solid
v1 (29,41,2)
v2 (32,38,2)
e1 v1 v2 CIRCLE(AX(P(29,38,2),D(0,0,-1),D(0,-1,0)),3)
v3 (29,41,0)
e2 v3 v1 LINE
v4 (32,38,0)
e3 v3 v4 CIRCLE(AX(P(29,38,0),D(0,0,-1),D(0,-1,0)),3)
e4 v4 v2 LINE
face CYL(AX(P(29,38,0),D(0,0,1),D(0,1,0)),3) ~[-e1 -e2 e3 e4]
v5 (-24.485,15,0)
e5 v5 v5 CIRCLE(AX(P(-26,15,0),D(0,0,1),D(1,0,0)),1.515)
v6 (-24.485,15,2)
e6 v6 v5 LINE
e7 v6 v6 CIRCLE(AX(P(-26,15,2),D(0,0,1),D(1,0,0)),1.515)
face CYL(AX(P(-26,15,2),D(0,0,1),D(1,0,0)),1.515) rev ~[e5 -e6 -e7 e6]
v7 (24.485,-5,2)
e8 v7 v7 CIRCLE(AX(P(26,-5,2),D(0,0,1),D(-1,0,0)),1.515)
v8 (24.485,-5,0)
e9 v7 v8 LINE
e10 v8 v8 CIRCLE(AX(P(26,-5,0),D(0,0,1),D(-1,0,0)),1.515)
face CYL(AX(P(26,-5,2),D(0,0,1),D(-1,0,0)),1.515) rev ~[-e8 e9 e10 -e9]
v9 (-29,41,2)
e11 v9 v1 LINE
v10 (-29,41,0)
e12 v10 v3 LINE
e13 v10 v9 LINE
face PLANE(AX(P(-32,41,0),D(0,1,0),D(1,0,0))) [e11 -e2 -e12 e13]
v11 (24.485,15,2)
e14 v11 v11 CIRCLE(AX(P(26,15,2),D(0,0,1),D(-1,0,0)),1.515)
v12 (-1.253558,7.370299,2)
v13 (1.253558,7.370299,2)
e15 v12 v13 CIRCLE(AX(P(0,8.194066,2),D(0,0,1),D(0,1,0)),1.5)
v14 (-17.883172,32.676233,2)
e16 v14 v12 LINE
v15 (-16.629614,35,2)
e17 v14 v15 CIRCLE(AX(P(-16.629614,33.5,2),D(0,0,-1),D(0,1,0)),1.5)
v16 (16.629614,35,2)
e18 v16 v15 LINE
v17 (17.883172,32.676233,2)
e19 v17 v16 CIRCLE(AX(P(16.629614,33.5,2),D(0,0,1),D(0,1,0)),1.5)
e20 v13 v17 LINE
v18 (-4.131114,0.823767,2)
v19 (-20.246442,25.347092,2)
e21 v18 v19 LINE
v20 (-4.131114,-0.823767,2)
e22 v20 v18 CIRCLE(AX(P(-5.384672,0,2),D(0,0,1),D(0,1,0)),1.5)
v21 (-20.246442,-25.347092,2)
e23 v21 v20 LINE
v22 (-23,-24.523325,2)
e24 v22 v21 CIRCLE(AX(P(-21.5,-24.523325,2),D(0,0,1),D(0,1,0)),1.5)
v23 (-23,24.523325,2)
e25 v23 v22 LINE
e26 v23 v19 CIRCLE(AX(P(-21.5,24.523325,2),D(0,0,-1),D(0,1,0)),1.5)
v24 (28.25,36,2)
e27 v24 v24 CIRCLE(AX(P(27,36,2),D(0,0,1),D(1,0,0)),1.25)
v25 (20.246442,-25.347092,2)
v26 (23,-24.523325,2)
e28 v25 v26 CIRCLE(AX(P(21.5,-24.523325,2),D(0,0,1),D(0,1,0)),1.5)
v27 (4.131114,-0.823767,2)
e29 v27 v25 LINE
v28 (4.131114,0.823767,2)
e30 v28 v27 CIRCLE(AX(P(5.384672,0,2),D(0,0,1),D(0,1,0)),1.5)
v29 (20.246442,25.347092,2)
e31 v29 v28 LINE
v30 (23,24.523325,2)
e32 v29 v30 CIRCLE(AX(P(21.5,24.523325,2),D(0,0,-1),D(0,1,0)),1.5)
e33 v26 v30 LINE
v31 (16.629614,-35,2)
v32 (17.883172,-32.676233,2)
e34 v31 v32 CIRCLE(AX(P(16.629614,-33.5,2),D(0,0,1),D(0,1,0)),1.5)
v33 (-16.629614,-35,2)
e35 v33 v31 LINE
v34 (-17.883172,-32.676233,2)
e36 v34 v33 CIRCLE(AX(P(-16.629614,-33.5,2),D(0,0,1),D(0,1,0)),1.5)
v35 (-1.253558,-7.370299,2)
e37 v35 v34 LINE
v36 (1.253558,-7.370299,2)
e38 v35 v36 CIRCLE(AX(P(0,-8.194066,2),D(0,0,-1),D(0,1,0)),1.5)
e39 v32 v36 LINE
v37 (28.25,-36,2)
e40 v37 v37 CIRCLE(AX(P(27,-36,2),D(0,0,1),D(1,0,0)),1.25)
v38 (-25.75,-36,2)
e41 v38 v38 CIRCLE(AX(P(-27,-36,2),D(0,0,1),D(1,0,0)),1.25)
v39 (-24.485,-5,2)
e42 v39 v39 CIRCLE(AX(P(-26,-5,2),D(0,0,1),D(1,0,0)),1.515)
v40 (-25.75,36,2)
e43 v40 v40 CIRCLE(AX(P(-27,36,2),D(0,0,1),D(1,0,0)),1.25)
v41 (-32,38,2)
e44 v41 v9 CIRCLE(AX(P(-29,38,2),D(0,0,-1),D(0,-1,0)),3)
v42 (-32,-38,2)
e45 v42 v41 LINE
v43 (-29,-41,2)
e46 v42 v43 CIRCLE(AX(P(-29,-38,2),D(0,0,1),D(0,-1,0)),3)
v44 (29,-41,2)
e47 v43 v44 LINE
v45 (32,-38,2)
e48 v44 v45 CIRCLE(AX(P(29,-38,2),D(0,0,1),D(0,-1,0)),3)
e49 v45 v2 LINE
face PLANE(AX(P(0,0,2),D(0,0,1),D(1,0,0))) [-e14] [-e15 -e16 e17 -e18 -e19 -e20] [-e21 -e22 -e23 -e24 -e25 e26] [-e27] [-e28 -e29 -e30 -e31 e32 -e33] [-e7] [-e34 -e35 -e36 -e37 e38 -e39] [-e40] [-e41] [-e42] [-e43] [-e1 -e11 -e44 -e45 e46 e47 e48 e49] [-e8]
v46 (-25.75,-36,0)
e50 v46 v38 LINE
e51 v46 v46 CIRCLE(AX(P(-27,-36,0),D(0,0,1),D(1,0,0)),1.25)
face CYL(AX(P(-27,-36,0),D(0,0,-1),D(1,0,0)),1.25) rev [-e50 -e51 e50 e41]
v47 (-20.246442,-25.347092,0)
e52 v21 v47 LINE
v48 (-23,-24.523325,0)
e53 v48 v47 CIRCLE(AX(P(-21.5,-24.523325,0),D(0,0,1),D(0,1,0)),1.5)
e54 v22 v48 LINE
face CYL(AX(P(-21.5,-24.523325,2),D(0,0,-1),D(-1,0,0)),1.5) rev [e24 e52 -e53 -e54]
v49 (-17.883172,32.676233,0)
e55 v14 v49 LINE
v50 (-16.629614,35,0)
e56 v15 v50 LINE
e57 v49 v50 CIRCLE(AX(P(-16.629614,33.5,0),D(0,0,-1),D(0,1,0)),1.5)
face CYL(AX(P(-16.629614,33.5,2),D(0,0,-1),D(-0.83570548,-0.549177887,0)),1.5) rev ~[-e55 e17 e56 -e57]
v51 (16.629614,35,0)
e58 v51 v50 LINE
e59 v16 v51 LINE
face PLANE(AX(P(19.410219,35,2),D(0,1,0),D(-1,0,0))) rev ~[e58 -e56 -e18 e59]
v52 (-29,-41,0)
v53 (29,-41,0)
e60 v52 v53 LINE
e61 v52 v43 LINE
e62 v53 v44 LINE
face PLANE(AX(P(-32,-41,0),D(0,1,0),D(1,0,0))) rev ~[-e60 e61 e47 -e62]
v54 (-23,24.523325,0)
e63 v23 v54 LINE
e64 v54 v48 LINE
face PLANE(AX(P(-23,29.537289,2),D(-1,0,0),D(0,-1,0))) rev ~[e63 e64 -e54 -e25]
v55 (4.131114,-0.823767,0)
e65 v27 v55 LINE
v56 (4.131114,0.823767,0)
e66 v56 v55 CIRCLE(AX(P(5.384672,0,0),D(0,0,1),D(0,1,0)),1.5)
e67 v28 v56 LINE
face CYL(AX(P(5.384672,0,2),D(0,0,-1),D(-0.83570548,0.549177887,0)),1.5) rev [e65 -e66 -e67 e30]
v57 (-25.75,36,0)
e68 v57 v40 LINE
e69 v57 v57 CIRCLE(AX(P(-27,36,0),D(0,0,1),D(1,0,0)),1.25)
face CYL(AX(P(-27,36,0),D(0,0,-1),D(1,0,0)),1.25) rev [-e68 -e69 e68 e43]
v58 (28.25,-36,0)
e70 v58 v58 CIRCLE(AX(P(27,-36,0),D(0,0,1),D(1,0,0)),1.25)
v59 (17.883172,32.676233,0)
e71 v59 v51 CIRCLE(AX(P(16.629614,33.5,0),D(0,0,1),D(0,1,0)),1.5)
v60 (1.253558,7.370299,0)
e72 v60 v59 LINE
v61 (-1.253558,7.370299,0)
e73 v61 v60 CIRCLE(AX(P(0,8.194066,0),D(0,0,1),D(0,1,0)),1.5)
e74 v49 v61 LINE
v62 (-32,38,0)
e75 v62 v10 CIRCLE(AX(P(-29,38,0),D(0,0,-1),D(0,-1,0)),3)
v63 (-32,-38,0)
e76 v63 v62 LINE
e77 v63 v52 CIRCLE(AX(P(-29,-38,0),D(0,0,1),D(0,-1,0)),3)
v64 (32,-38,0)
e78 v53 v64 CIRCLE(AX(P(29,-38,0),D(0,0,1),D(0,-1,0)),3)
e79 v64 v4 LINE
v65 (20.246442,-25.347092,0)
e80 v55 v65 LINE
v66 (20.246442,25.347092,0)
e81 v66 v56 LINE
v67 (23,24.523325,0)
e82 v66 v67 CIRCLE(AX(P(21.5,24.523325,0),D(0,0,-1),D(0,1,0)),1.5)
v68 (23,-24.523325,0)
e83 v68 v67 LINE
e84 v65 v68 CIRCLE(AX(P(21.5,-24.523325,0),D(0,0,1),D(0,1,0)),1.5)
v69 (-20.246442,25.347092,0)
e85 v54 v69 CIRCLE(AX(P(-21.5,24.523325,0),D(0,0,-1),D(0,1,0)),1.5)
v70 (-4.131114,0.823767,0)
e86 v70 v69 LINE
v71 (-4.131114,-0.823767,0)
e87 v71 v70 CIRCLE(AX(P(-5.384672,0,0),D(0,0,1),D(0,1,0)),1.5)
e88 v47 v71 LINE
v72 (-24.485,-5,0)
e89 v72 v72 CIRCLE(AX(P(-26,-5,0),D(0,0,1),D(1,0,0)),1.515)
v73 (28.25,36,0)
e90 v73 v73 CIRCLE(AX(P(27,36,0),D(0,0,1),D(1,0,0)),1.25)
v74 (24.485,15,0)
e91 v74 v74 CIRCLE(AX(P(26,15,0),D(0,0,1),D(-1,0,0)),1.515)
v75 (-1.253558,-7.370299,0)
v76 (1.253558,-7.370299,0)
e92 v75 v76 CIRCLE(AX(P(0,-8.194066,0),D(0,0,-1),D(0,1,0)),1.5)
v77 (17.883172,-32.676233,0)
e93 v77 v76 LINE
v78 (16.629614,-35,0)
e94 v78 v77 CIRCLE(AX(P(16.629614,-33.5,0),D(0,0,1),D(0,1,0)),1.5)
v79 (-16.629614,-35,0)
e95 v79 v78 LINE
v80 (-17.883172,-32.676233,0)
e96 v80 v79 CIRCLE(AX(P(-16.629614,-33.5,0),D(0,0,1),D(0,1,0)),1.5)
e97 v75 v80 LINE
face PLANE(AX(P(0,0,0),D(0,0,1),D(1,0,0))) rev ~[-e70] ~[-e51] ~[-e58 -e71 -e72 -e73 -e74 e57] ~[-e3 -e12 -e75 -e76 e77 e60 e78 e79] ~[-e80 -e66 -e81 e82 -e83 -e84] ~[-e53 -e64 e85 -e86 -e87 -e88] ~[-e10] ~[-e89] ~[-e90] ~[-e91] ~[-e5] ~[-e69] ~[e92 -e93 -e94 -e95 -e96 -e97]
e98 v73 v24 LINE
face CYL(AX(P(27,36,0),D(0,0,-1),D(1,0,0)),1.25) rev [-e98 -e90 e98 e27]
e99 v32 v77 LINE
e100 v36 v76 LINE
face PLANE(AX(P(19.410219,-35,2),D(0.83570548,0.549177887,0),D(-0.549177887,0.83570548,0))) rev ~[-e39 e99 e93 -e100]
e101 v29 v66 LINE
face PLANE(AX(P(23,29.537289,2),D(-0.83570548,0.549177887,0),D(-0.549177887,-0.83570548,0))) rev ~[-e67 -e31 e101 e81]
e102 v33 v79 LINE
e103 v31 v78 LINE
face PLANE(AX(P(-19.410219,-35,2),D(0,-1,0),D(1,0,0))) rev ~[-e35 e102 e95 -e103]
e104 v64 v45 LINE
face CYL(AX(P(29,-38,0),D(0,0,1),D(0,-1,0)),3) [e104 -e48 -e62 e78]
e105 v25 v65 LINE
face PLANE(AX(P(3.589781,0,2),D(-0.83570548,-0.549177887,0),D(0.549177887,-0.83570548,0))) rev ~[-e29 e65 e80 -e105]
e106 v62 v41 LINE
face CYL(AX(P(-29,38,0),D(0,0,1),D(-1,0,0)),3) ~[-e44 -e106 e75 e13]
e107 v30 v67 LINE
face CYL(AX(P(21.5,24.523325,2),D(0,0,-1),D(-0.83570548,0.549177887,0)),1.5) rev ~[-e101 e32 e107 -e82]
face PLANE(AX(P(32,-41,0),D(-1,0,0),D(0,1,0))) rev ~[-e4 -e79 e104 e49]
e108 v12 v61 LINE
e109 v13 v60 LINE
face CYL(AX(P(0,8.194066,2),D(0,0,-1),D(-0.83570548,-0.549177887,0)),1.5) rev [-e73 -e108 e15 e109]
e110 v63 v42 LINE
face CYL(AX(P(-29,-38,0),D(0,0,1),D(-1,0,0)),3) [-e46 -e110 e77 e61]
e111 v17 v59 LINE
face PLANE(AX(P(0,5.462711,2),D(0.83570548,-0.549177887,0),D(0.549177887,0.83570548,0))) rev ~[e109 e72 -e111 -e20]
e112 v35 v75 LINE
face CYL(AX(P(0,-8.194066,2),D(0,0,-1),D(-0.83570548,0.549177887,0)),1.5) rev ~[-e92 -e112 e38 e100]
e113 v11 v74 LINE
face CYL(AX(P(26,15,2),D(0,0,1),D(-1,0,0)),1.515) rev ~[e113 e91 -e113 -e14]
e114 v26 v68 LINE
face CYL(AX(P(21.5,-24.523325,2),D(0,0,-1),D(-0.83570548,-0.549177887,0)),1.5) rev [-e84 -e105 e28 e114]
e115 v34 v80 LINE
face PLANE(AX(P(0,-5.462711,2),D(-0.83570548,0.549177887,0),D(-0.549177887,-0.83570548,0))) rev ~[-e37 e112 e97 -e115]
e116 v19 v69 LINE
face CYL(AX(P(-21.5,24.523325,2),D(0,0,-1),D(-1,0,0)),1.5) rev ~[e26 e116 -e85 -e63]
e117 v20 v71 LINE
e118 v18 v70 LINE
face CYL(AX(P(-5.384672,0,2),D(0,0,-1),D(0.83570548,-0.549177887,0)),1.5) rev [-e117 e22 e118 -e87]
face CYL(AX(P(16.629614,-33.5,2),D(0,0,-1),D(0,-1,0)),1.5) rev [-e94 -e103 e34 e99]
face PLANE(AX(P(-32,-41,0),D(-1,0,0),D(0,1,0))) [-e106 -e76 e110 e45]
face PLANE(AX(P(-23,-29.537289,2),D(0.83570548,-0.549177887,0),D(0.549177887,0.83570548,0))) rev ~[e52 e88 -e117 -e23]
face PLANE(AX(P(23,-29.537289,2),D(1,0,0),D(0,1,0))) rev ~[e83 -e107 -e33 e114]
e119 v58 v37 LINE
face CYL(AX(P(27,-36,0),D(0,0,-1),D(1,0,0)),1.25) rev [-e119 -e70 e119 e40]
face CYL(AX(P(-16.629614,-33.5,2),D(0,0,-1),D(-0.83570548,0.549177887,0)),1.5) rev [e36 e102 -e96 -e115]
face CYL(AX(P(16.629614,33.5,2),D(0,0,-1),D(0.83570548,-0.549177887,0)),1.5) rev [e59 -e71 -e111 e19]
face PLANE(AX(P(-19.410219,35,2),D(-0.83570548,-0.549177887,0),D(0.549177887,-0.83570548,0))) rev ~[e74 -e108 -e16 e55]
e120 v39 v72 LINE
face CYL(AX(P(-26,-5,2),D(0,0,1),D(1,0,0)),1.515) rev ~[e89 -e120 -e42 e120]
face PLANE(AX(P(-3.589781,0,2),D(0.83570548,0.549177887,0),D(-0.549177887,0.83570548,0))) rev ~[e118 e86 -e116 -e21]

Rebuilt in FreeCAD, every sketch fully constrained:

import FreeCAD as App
import Part
import Sketcher

V = App.Vector
Q = App.Units.Quantity


def edges_at(feature, points):
    """Names of the edges that pass closest to the given points."""
    edges = feature.Shape.Edges
    near = lambda p: min(range(len(edges)), key=lambda i: edges[i].distToShape(Part.Vertex(*p))[0])
    return sorted({f"Edge{near(p) + 1}" for p in points})

doc = App.newDocument("Part")
body = doc.addObject("PartDesign::Body", "Body")

sketch1 = body.newObject("Sketcher::SketchObject", "Sketch")
sketch1.AttachmentSupport = (doc.getObject("XY_Plane"), [""])
sketch1.MapMode = "FlatFace"
sketch1.addGeometry([
    Part.LineSegment(V(-32, 41, 0), V(-32, -41, 0)),
    Part.LineSegment(V(-32, -41, 0), V(32, -41, 0)),
    Part.LineSegment(V(32, -41, 0), V(32, 41, 0)),
    Part.LineSegment(V(32, 41, 0), V(-32, 41, 0)),
    Part.Circle(V(-27, -36, 0), V(0, 0, 1), 1.25),
    Part.Circle(V(27, -36, 0), V(0, 0, 1), 1.25),
    Part.Circle(V(-27, 36, 0), V(0, 0, 1), 1.25),
    Part.Circle(V(27, 36, 0), V(0, 0, 1), 1.25),
], False)
sketch1.addConstraint([
    Sketcher.Constraint("Coincident", 0, 2, 1, 1),
    Sketcher.Constraint("Coincident", 1, 2, 2, 1),
    Sketcher.Constraint("Coincident", 2, 2, 3, 1),
    Sketcher.Constraint("Coincident", 3, 2, 0, 1),
    Sketcher.Constraint("Vertical", 0),
    Sketcher.Constraint("Horizontal", 1),
    Sketcher.Constraint("Vertical", 2),
    Sketcher.Constraint("Horizontal", 3),
    Sketcher.Constraint("Equal", 4, 5),
    Sketcher.Constraint("Equal", 5, 6),
    Sketcher.Constraint("Equal", 6, 7),
    Sketcher.Constraint("Symmetric", 5, 3, 6, 3, -1, 1),
    Sketcher.Constraint("Symmetric", 4, 3, 7, 3, -1, 1),
    Sketcher.Constraint("Symmetric", 0, 2, 2, 2, -1, 1),
    Sketcher.Constraint("Symmetric", 4, 3, 5, 3, -2),
    Sketcher.Constraint("Diameter", 4, Q("2.5 mm")),
    Sketcher.Constraint("DistanceX", 1, 1, 1, 2, Q("64 mm")),
    Sketcher.Constraint("DistanceY", 0, 2, 0, 1, Q("82 mm")),
    Sketcher.Constraint("DistanceX", 4, 3, -1, 1, Q("27 mm")),
    Sketcher.Constraint("DistanceY", 4, 3, -1, 1, Q("36 mm")),
])
pad1 = body.newObject("PartDesign::Pad", "Pad")
pad1.Profile = sketch1
pad1.Length = 2
doc.recompute()

fillet = body.newObject("PartDesign::Fillet", "Fillet")
fillet.Base = (pad1, edges_at(pad1, [
    (32, -41, 1),
    (-32, -41, 1),
    (-32, 41, 1),
    (32, 41, 1),
]))
fillet.Radius = 3

sketch2 = body.newObject("Sketcher::SketchObject", "Sketch001")
sketch2.AttachmentSupport = (doc.getObject("XY_Plane"), [""])
sketch2.MapMode = "FlatFace"
sketch2.AttachmentOffset = App.Placement(V(0, 0, 2), App.Rotation())
sketch2.addGeometry([
    Part.Circle(V(-26, 15, 0), V(0, 0, 1), 1.515),
    Part.Circle(V(-26, -5, 0), V(0, 0, 1), 1.515),
    Part.Circle(V(26, -5, 0), V(0, 0, 1), 1.515),
    Part.Circle(V(26, 15, 0), V(0, 0, 1), 1.515),
], False)
sketch2.addConstraint([
    Sketcher.Constraint("Equal", 0, 1),
    Sketcher.Constraint("Equal", 1, 2),
    Sketcher.Constraint("Equal", 2, 3),
    Sketcher.Constraint("Symmetric", 1, 3, 2, 3, -2),
    Sketcher.Constraint("Symmetric", 0, 3, 3, 3, -2),
    Sketcher.Constraint("Vertical", 0, 3, 1, 3),
    Sketcher.Constraint("Diameter", 0, Q("3.03 mm")),
    Sketcher.Constraint("DistanceX", 0, 3, -1, 1, Q("26 mm")),
    Sketcher.Constraint("DistanceY", -1, 1, 0, 3, Q("15 mm")),
    Sketcher.Constraint("DistanceY", 1, 3, -1, 1, Q("5 mm")),
])
pocket1 = body.newObject("PartDesign::Pocket", "Pocket")
pocket1.Profile = sketch2
pocket1.Length = 10

sketch3 = body.newObject("Sketcher::SketchObject", "Sketch002")
sketch3.AttachmentSupport = (doc.getObject("XY_Plane"), [""])
sketch3.MapMode = "FlatFace"
sketch3.AttachmentOffset = App.Placement(V(0, 0, 2), App.Rotation())
sketch3.addGeometry([
    Part.LineSegment(V(-23, 29.537289, 0), V(-23, -29.537289, 0)),
    Part.LineSegment(V(-23, -29.537289, 0), V(-3.589781, 0, 0)),
    Part.LineSegment(V(-3.589781, 0, 0), V(-23, 29.537289, 0)),
    Part.LineSegment(V(-19.410219, 35, 0), V(0, 5.462711, 0)),
    Part.LineSegment(V(0, 5.462711, 0), V(19.410219, 35, 0)),
    Part.LineSegment(V(19.410219, 35, 0), V(-19.410219, 35, 0)),
    Part.LineSegment(V(23, 29.537289, 0), V(3.589781, 0, 0)),
    Part.LineSegment(V(3.589781, 0, 0), V(23, -29.537289, 0)),
    Part.LineSegment(V(23, -29.537289, 0), V(23, 29.537289, 0)),
    Part.LineSegment(V(0, -5.462711, 0), V(-19.410219, -35, 0)),
    Part.LineSegment(V(-19.410219, -35, 0), V(19.410219, -35, 0)),
    Part.LineSegment(V(19.410219, -35, 0), V(0, -5.462711, 0)),
], False)
sketch3.addConstraint([
    Sketcher.Constraint("Coincident", 0, 2, 1, 1),
    Sketcher.Constraint("Coincident", 1, 2, 2, 1),
    Sketcher.Constraint("Coincident", 2, 2, 0, 1),
    Sketcher.Constraint("Coincident", 3, 2, 4, 1),
    Sketcher.Constraint("Coincident", 4, 2, 5, 1),
    Sketcher.Constraint("Coincident", 5, 2, 3, 1),
    Sketcher.Constraint("Coincident", 6, 2, 7, 1),
    Sketcher.Constraint("Coincident", 7, 2, 8, 1),
    Sketcher.Constraint("Coincident", 8, 2, 6, 1),
    Sketcher.Constraint("Coincident", 9, 2, 10, 1),
    Sketcher.Constraint("Coincident", 10, 2, 11, 1),
    Sketcher.Constraint("Coincident", 11, 2, 9, 1),
    Sketcher.Constraint("Vertical", 0),
    Sketcher.Constraint("Horizontal", 5),
    Sketcher.Constraint("Vertical", 8),
    Sketcher.Constraint("Horizontal", 10),
    Sketcher.Constraint("Symmetric", 1, 2, 6, 2, -1, 1),
    Sketcher.Constraint("Symmetric", 2, 2, 7, 2, -1, 1),
    Sketcher.Constraint("Symmetric", 4, 2, 9, 2, -1, 1),
    Sketcher.Constraint("Symmetric", 3, 2, 11, 2, -1, 1),
    Sketcher.Constraint("PointOnObject", 1, 2, -1),
    Sketcher.Constraint("PointOnObject", 3, 2, -2),
    Sketcher.Constraint("Parallel", 2, 3),
    Sketcher.Constraint("Parallel", 1, 4),
    Sketcher.Constraint("Parallel", 4, 6),
    Sketcher.Constraint("Parallel", 7, 11),
    Sketcher.Constraint("Horizontal", 0, 2, 7, 2),
    Sketcher.Constraint("Equal", 2, 3),
    Sketcher.Constraint("DistanceX", 0, 2, -1, 1, Q("23 mm")),
    Sketcher.Constraint("DistanceY", -1, 1, 4, 2, Q("35 mm")),
    Sketcher.Constraint("DistanceY", 0, 2, 0, 1, Q("59.074578 mm")),
    Sketcher.Constraint("DistanceX", 5, 2, 5, 1, Q("38.820437 mm")),
])
pocket2 = body.newObject("PartDesign::Pocket", "Pocket001")
pocket2.Profile = sketch3
pocket2.Length = 10
doc.recompute()

fillet2 = body.newObject("PartDesign::Fillet", "Fillet001")
fillet2.Base = (pocket2, edges_at(pocket2, [
    (0, -5.463, 1),
    (19.41, -35, 1),
    (-19.41, -35, 1),
    (-23, 29.537, 1),
    (-3.59, 0, 1),
    (-23, -29.537, 1),
    (3.59, 0, 1),
    (23, 29.537, 1),
    (23, -29.537, 1),
    (-19.41, 35, 1),
    (19.41, 35, 1),
    (0, 5.463, 1),
]))
fillet2.Radius = 1.5

doc.recompute()
